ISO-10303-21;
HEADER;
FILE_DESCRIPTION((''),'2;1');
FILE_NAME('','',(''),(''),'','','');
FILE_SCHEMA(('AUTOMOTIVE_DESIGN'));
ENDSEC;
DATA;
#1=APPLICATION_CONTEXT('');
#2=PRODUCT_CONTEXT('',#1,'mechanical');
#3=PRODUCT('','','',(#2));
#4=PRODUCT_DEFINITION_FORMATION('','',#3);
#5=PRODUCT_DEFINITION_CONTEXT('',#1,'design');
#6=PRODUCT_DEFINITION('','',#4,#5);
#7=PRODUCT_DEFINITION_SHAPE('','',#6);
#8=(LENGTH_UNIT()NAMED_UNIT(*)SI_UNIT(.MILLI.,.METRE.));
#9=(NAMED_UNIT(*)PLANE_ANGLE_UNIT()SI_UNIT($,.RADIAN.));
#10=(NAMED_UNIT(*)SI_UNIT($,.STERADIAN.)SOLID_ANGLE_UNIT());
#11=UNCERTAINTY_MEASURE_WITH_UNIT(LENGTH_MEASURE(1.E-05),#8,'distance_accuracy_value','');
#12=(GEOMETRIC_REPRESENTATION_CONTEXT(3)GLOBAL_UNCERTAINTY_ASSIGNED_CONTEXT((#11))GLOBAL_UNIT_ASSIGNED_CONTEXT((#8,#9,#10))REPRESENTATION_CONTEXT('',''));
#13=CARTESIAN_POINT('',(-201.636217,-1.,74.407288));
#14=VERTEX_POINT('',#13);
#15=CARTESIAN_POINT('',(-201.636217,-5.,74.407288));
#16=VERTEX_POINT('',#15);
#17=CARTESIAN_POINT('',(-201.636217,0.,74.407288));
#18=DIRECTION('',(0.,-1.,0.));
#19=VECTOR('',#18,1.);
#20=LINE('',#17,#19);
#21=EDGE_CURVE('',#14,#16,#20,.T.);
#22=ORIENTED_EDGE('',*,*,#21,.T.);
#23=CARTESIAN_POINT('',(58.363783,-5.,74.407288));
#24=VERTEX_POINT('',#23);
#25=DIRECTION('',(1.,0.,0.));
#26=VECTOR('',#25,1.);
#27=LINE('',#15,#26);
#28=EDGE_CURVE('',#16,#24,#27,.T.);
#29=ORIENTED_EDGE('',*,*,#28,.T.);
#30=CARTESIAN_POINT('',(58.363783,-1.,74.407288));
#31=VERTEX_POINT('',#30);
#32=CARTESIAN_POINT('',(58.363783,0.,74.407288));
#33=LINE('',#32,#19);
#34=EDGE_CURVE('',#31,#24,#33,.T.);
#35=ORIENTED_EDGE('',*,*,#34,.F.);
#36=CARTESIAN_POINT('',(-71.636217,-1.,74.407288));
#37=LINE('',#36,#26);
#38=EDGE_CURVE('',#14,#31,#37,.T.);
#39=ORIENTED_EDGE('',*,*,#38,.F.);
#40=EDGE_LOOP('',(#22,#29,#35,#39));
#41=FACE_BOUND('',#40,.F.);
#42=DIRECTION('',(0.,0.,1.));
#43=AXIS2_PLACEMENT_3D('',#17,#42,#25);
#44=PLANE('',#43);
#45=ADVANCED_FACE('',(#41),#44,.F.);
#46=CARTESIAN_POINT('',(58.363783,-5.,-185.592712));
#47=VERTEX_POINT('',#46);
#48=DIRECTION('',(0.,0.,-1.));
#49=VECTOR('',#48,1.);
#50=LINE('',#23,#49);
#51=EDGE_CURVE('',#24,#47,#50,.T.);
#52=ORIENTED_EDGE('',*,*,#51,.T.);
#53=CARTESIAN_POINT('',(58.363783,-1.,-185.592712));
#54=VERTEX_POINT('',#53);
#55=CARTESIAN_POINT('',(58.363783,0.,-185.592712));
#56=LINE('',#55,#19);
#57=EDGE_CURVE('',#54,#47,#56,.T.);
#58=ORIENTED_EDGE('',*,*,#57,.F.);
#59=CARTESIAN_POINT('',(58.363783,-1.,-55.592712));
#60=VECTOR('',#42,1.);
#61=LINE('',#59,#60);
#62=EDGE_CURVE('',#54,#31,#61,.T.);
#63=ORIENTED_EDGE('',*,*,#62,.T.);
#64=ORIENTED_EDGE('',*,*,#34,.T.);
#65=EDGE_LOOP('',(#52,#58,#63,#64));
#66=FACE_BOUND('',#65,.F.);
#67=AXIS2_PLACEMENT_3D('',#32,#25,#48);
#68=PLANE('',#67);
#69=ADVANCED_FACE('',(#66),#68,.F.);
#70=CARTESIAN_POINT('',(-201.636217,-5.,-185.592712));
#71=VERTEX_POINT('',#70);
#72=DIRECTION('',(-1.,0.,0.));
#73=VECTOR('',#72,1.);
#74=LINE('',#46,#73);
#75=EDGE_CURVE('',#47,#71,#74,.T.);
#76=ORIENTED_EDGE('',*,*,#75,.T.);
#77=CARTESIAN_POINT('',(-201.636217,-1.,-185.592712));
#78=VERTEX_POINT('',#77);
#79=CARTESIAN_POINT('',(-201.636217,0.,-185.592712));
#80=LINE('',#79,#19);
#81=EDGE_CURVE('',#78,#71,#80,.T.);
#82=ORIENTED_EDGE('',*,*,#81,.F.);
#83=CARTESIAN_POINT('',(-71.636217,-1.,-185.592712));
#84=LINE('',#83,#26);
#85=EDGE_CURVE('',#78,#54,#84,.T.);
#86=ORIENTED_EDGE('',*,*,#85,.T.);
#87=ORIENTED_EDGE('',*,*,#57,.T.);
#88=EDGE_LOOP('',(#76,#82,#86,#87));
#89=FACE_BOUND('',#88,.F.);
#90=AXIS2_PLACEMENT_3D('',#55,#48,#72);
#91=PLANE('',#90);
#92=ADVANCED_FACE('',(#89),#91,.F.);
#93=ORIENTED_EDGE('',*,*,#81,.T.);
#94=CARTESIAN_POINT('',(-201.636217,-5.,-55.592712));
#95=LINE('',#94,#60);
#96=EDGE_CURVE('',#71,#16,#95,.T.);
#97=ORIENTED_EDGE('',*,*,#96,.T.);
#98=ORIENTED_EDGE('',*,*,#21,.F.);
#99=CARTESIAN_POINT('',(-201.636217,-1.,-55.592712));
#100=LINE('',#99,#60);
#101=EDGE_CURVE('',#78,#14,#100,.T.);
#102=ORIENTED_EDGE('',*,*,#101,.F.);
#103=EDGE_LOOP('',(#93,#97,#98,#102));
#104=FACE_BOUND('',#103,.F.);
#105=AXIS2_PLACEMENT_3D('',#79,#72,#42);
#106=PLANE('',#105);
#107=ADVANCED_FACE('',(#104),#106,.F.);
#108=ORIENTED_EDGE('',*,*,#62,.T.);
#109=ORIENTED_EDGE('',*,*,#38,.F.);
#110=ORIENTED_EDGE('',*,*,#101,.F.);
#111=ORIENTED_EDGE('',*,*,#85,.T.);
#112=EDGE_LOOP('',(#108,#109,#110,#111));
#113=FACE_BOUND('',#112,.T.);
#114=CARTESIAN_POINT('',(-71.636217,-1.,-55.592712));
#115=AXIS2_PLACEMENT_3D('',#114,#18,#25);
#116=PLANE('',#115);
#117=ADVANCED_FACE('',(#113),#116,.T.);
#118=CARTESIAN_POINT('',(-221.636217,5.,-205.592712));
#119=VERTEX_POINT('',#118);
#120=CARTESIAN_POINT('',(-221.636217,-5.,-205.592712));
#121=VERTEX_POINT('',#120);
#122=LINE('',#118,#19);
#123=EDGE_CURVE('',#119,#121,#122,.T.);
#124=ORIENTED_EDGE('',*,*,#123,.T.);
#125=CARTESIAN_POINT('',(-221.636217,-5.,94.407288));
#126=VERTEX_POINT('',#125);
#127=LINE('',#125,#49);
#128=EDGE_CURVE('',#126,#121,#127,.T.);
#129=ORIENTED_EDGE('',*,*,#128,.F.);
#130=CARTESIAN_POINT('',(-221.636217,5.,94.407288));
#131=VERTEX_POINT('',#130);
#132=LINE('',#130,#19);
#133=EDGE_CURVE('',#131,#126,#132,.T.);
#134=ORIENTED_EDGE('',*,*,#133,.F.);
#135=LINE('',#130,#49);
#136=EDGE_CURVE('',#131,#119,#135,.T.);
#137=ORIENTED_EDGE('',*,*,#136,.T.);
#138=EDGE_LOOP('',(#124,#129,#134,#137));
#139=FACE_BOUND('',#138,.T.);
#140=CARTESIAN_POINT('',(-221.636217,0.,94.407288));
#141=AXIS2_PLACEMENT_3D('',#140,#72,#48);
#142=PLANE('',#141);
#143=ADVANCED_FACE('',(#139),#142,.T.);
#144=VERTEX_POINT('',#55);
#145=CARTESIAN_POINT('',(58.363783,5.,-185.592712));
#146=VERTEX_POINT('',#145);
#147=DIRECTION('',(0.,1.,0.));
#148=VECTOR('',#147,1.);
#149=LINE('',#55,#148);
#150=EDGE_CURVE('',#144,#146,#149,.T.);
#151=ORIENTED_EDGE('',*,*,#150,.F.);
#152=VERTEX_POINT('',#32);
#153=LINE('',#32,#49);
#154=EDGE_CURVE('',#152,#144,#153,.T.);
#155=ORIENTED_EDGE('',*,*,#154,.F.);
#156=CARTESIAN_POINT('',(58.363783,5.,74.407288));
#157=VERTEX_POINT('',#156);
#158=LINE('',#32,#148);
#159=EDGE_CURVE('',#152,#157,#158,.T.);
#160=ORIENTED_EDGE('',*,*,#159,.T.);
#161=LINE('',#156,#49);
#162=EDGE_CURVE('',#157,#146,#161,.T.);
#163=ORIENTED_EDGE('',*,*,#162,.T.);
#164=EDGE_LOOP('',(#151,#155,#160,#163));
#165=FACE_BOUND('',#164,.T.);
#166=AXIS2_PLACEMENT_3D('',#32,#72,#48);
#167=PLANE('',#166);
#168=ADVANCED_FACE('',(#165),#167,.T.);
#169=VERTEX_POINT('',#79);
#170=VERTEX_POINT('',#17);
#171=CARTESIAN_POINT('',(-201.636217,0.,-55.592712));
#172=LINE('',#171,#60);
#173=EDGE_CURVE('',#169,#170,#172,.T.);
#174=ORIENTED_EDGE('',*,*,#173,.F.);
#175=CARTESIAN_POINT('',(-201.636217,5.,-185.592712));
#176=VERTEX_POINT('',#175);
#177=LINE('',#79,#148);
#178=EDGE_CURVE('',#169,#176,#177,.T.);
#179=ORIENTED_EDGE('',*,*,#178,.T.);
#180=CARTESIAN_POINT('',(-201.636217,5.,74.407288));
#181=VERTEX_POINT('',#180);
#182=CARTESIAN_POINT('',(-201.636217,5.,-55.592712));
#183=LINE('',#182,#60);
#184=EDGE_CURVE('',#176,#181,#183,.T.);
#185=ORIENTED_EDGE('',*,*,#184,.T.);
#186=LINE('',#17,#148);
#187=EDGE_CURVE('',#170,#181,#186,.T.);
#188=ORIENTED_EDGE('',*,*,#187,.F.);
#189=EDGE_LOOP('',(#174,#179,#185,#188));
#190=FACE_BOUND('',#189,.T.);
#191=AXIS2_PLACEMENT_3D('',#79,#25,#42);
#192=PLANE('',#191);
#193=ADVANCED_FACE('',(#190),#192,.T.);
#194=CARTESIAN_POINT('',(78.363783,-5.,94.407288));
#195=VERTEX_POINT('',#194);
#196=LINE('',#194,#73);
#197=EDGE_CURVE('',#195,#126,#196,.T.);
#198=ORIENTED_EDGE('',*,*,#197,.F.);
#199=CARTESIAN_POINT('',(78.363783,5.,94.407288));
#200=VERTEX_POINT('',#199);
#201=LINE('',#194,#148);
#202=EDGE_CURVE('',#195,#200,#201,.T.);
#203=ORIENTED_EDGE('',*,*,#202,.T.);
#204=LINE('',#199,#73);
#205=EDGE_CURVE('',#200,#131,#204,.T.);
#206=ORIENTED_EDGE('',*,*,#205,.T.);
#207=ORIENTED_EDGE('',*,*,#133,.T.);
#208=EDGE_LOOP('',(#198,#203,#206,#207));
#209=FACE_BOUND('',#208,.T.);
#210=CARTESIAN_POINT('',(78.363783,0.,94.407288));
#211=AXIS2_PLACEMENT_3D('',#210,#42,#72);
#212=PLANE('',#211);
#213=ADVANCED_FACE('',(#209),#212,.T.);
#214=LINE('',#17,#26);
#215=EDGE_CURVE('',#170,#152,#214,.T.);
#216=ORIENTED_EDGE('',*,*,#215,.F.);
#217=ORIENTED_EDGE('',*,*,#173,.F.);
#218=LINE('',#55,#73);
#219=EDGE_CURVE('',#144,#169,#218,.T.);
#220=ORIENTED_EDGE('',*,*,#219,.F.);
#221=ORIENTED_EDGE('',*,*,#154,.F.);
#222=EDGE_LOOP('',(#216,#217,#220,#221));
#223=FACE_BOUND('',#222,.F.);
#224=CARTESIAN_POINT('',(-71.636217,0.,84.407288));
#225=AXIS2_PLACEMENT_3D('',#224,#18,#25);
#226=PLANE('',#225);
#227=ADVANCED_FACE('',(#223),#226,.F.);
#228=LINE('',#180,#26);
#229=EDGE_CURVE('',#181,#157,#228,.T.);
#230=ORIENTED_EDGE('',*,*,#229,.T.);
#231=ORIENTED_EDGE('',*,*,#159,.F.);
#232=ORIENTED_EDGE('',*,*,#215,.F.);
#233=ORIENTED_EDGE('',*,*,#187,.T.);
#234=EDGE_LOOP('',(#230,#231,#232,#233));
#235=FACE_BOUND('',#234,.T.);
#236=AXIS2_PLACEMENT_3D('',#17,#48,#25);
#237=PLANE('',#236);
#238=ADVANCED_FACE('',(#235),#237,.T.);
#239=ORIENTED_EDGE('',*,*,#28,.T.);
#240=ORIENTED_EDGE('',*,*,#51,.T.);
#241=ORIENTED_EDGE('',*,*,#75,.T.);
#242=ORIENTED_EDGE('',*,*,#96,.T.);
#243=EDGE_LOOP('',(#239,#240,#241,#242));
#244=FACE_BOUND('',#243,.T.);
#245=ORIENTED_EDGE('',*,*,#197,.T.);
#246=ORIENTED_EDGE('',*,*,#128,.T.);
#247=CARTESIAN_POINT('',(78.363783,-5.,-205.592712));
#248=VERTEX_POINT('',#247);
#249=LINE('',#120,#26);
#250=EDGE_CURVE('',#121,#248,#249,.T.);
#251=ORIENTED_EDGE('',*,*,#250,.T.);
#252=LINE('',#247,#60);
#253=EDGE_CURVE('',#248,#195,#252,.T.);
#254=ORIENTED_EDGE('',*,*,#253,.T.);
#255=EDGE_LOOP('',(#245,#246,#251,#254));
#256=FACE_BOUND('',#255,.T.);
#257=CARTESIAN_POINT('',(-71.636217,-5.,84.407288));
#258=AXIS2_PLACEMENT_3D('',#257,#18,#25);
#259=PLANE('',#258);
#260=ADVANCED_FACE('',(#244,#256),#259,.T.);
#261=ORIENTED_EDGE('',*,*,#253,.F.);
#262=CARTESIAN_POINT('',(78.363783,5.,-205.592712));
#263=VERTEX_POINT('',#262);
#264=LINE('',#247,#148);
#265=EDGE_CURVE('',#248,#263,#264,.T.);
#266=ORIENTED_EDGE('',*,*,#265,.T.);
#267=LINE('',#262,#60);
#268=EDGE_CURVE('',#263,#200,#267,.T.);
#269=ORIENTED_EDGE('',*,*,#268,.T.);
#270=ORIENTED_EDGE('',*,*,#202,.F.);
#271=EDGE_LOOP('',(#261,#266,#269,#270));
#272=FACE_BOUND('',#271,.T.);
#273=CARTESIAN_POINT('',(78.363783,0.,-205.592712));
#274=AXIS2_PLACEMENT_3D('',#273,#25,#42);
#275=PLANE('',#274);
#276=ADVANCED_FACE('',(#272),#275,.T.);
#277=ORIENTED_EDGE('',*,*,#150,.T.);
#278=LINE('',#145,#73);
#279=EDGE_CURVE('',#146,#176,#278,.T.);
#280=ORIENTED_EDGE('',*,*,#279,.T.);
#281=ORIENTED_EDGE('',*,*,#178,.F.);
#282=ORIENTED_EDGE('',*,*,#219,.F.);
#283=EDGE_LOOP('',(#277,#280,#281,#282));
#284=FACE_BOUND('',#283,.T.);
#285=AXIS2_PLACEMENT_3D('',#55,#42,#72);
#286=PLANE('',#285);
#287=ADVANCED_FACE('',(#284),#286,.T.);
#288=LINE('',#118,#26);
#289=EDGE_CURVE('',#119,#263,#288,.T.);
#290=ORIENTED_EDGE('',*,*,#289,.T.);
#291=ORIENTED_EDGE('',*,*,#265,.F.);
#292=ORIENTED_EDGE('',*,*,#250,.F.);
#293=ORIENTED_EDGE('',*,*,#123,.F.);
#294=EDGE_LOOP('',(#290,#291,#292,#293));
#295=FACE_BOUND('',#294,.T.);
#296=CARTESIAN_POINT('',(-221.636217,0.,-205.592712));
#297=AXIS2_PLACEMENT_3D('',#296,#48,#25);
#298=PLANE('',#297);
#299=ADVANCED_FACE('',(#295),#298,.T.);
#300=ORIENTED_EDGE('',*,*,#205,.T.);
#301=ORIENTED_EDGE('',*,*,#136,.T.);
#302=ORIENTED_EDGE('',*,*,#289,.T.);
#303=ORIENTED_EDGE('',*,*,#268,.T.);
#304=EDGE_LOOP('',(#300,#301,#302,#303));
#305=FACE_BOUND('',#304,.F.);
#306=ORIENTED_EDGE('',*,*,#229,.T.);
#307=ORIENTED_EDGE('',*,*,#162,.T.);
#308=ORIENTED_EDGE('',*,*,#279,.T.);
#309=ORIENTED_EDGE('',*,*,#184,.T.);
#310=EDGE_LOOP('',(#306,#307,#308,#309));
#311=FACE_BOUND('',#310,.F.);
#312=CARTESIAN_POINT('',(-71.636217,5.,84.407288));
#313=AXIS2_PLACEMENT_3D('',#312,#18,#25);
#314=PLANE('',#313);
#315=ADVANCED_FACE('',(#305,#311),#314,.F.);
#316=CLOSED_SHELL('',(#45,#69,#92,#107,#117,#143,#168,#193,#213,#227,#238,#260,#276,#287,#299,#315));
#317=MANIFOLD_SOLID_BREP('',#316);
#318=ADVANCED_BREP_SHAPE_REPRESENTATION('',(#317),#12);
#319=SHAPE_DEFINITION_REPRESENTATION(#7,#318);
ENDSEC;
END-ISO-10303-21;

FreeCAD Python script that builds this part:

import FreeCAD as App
import Part
import Sketcher
from FreeCAD import Vector


def add_polygon(sketch, points):
    """Adds a closed chain of lines whose ends are joined by coincident constraints."""
    first, n = sketch.GeometryCount, len(points)
    for a, b in zip(points, points[1:] + points[:1]):
        sketch.addGeometry(Part.LineSegment(App.Vector(*a, 0), App.Vector(*b, 0)), False)
    for i in range(n):
        sketch.addConstraint(Sketcher.Constraint("Coincident", first + i, 2, first + (i + 1) % n, 1))

doc = App.newDocument("Part")
body = doc.addObject("PartDesign::Body", "Body")

# Sketch on XZ plane
sketch1 = body.newObject("Sketcher::SketchObject", "Sketch")
sketch1.AttachmentSupport = (doc.getObject("XZ_Plane"), [""])
sketch1.MapMode = "FlatFace"
add_polygon(sketch1, [(-201.636217, 74.407288), (-201.636217, -185.592712), (58.363783, -185.592712), (58.363783, 74.407288)])  # lines 0-3
sketch1.addConstraint([
    Sketcher.Constraint("Vertical", 0),
    Sketcher.Constraint("Horizontal", 1),
    Sketcher.Constraint("Vertical", 2),
    Sketcher.Constraint("Horizontal", 3),
    Sketcher.Constraint("Equal", 3, 0),
    Sketcher.Constraint("DistanceX", 1, 1, 1, 2, 260.0),
    Sketcher.Constraint("DistanceX", 0, 2, -1, 1, 201.636217),
    Sketcher.Constraint("DistanceY", 0, 2, -1, 1, 185.592712),
])
pad1 = body.newObject("PartDesign::Pad", "Pad")
pad1.Profile = sketch1
pad1.Length = 1

# Sketch on XZ plane
sketch2 = body.newObject("Sketcher::SketchObject", "Sketch001")
sketch2.AttachmentSupport = (doc.getObject("XZ_Plane"), [""])
sketch2.MapMode = "FlatFace"
add_polygon(sketch2, [(78.363783, 94.407288), (-221.636217, 94.407288), (-221.636217, -205.592712), (78.363783, -205.592712)])  # lines 0-3
add_polygon(sketch2, [(-201.636217, -185.592712), (-201.636217, 74.407288), (58.363783, 74.407288), (58.363783, -185.592712)])  # lines 4-7
sketch2.addConstraint([
    Sketcher.Constraint("Horizontal", 0),
    Sketcher.Constraint("Vertical", 1),
    Sketcher.Constraint("Horizontal", 2),
    Sketcher.Constraint("Vertical", 3),
    Sketcher.Constraint("Vertical", 4),
    Sketcher.Constraint("Horizontal", 5),
    Sketcher.Constraint("Vertical", 6),
    Sketcher.Constraint("Horizontal", 7),
    Sketcher.Constraint("Equal", 2, 1),
    Sketcher.Constraint("Equal", 7, 4),
    Sketcher.Constraint("DistanceX", 0, 2, 0, 1, 300.0),
    Sketcher.Constraint("DistanceX", 5, 1, 5, 2, 260.0),
    Sketcher.Constraint("DistanceX", 0, 2, 4, 2, 20.0),
    Sketcher.Constraint("DistanceY", 4, 2, 0, 2, 20.0),
    Sketcher.Constraint("DistanceX", 0, 2, -1, 1, 221.636217),
    Sketcher.Constraint("DistanceY", -1, 1, 0, 2, 94.407288),
])
pad2 = body.newObject("PartDesign::Pad", "Pad001")
pad2.Profile = sketch2
pad2.Length = 5

# Sketch on XZ plane
sketch3 = body.newObject("Sketcher::SketchObject", "Sketch002")
sketch3.AttachmentSupport = (doc.getObject("XZ_Plane"), [""])
sketch3.MapMode = "FlatFace"
add_polygon(sketch3, [(78.363783, 94.407288), (-221.636217, 94.407288), (-221.636217, -205.592712), (78.363783, -205.592712)])  # lines 0-3
add_polygon(sketch3, [(-201.636217, -185.592712), (-201.636217, 74.407288), (58.363783, 74.407288), (58.363783, -185.592712)])  # lines 4-7
sketch3.addConstraint([
    Sketcher.Constraint("Horizontal", 0),
    Sketcher.Constraint("Vertical", 1),
    Sketcher.Constraint("Horizontal", 2),
    Sketcher.Constraint("Vertical", 3),
    Sketcher.Constraint("Vertical", 4),
    Sketcher.Constraint("Horizontal", 5),
    Sketcher.Constraint("Vertical", 6),
    Sketcher.Constraint("Horizontal", 7),
    Sketcher.Constraint("Equal", 2, 1),
    Sketcher.Constraint("Equal", 7, 4),
    Sketcher.Constraint("DistanceX", 0, 2, 0, 1, 300.0),
    Sketcher.Constraint("DistanceX", 5, 1, 5, 2, 260.0),
    Sketcher.Constraint("DistanceX", 0, 2, 4, 2, 20.0),
    Sketcher.Constraint("DistanceY", 4, 2, 0, 2, 20.0),
    Sketcher.Constraint("DistanceX", 0, 2, -1, 1, 221.636217),
    Sketcher.Constraint("DistanceY", -1, 1, 0, 2, 94.407288),
])
pad3 = body.newObject("PartDesign::Pad", "Pad002")
pad3.Profile = sketch3
pad3.Length = 5
pad3.Reversed = True

doc.recompute()
